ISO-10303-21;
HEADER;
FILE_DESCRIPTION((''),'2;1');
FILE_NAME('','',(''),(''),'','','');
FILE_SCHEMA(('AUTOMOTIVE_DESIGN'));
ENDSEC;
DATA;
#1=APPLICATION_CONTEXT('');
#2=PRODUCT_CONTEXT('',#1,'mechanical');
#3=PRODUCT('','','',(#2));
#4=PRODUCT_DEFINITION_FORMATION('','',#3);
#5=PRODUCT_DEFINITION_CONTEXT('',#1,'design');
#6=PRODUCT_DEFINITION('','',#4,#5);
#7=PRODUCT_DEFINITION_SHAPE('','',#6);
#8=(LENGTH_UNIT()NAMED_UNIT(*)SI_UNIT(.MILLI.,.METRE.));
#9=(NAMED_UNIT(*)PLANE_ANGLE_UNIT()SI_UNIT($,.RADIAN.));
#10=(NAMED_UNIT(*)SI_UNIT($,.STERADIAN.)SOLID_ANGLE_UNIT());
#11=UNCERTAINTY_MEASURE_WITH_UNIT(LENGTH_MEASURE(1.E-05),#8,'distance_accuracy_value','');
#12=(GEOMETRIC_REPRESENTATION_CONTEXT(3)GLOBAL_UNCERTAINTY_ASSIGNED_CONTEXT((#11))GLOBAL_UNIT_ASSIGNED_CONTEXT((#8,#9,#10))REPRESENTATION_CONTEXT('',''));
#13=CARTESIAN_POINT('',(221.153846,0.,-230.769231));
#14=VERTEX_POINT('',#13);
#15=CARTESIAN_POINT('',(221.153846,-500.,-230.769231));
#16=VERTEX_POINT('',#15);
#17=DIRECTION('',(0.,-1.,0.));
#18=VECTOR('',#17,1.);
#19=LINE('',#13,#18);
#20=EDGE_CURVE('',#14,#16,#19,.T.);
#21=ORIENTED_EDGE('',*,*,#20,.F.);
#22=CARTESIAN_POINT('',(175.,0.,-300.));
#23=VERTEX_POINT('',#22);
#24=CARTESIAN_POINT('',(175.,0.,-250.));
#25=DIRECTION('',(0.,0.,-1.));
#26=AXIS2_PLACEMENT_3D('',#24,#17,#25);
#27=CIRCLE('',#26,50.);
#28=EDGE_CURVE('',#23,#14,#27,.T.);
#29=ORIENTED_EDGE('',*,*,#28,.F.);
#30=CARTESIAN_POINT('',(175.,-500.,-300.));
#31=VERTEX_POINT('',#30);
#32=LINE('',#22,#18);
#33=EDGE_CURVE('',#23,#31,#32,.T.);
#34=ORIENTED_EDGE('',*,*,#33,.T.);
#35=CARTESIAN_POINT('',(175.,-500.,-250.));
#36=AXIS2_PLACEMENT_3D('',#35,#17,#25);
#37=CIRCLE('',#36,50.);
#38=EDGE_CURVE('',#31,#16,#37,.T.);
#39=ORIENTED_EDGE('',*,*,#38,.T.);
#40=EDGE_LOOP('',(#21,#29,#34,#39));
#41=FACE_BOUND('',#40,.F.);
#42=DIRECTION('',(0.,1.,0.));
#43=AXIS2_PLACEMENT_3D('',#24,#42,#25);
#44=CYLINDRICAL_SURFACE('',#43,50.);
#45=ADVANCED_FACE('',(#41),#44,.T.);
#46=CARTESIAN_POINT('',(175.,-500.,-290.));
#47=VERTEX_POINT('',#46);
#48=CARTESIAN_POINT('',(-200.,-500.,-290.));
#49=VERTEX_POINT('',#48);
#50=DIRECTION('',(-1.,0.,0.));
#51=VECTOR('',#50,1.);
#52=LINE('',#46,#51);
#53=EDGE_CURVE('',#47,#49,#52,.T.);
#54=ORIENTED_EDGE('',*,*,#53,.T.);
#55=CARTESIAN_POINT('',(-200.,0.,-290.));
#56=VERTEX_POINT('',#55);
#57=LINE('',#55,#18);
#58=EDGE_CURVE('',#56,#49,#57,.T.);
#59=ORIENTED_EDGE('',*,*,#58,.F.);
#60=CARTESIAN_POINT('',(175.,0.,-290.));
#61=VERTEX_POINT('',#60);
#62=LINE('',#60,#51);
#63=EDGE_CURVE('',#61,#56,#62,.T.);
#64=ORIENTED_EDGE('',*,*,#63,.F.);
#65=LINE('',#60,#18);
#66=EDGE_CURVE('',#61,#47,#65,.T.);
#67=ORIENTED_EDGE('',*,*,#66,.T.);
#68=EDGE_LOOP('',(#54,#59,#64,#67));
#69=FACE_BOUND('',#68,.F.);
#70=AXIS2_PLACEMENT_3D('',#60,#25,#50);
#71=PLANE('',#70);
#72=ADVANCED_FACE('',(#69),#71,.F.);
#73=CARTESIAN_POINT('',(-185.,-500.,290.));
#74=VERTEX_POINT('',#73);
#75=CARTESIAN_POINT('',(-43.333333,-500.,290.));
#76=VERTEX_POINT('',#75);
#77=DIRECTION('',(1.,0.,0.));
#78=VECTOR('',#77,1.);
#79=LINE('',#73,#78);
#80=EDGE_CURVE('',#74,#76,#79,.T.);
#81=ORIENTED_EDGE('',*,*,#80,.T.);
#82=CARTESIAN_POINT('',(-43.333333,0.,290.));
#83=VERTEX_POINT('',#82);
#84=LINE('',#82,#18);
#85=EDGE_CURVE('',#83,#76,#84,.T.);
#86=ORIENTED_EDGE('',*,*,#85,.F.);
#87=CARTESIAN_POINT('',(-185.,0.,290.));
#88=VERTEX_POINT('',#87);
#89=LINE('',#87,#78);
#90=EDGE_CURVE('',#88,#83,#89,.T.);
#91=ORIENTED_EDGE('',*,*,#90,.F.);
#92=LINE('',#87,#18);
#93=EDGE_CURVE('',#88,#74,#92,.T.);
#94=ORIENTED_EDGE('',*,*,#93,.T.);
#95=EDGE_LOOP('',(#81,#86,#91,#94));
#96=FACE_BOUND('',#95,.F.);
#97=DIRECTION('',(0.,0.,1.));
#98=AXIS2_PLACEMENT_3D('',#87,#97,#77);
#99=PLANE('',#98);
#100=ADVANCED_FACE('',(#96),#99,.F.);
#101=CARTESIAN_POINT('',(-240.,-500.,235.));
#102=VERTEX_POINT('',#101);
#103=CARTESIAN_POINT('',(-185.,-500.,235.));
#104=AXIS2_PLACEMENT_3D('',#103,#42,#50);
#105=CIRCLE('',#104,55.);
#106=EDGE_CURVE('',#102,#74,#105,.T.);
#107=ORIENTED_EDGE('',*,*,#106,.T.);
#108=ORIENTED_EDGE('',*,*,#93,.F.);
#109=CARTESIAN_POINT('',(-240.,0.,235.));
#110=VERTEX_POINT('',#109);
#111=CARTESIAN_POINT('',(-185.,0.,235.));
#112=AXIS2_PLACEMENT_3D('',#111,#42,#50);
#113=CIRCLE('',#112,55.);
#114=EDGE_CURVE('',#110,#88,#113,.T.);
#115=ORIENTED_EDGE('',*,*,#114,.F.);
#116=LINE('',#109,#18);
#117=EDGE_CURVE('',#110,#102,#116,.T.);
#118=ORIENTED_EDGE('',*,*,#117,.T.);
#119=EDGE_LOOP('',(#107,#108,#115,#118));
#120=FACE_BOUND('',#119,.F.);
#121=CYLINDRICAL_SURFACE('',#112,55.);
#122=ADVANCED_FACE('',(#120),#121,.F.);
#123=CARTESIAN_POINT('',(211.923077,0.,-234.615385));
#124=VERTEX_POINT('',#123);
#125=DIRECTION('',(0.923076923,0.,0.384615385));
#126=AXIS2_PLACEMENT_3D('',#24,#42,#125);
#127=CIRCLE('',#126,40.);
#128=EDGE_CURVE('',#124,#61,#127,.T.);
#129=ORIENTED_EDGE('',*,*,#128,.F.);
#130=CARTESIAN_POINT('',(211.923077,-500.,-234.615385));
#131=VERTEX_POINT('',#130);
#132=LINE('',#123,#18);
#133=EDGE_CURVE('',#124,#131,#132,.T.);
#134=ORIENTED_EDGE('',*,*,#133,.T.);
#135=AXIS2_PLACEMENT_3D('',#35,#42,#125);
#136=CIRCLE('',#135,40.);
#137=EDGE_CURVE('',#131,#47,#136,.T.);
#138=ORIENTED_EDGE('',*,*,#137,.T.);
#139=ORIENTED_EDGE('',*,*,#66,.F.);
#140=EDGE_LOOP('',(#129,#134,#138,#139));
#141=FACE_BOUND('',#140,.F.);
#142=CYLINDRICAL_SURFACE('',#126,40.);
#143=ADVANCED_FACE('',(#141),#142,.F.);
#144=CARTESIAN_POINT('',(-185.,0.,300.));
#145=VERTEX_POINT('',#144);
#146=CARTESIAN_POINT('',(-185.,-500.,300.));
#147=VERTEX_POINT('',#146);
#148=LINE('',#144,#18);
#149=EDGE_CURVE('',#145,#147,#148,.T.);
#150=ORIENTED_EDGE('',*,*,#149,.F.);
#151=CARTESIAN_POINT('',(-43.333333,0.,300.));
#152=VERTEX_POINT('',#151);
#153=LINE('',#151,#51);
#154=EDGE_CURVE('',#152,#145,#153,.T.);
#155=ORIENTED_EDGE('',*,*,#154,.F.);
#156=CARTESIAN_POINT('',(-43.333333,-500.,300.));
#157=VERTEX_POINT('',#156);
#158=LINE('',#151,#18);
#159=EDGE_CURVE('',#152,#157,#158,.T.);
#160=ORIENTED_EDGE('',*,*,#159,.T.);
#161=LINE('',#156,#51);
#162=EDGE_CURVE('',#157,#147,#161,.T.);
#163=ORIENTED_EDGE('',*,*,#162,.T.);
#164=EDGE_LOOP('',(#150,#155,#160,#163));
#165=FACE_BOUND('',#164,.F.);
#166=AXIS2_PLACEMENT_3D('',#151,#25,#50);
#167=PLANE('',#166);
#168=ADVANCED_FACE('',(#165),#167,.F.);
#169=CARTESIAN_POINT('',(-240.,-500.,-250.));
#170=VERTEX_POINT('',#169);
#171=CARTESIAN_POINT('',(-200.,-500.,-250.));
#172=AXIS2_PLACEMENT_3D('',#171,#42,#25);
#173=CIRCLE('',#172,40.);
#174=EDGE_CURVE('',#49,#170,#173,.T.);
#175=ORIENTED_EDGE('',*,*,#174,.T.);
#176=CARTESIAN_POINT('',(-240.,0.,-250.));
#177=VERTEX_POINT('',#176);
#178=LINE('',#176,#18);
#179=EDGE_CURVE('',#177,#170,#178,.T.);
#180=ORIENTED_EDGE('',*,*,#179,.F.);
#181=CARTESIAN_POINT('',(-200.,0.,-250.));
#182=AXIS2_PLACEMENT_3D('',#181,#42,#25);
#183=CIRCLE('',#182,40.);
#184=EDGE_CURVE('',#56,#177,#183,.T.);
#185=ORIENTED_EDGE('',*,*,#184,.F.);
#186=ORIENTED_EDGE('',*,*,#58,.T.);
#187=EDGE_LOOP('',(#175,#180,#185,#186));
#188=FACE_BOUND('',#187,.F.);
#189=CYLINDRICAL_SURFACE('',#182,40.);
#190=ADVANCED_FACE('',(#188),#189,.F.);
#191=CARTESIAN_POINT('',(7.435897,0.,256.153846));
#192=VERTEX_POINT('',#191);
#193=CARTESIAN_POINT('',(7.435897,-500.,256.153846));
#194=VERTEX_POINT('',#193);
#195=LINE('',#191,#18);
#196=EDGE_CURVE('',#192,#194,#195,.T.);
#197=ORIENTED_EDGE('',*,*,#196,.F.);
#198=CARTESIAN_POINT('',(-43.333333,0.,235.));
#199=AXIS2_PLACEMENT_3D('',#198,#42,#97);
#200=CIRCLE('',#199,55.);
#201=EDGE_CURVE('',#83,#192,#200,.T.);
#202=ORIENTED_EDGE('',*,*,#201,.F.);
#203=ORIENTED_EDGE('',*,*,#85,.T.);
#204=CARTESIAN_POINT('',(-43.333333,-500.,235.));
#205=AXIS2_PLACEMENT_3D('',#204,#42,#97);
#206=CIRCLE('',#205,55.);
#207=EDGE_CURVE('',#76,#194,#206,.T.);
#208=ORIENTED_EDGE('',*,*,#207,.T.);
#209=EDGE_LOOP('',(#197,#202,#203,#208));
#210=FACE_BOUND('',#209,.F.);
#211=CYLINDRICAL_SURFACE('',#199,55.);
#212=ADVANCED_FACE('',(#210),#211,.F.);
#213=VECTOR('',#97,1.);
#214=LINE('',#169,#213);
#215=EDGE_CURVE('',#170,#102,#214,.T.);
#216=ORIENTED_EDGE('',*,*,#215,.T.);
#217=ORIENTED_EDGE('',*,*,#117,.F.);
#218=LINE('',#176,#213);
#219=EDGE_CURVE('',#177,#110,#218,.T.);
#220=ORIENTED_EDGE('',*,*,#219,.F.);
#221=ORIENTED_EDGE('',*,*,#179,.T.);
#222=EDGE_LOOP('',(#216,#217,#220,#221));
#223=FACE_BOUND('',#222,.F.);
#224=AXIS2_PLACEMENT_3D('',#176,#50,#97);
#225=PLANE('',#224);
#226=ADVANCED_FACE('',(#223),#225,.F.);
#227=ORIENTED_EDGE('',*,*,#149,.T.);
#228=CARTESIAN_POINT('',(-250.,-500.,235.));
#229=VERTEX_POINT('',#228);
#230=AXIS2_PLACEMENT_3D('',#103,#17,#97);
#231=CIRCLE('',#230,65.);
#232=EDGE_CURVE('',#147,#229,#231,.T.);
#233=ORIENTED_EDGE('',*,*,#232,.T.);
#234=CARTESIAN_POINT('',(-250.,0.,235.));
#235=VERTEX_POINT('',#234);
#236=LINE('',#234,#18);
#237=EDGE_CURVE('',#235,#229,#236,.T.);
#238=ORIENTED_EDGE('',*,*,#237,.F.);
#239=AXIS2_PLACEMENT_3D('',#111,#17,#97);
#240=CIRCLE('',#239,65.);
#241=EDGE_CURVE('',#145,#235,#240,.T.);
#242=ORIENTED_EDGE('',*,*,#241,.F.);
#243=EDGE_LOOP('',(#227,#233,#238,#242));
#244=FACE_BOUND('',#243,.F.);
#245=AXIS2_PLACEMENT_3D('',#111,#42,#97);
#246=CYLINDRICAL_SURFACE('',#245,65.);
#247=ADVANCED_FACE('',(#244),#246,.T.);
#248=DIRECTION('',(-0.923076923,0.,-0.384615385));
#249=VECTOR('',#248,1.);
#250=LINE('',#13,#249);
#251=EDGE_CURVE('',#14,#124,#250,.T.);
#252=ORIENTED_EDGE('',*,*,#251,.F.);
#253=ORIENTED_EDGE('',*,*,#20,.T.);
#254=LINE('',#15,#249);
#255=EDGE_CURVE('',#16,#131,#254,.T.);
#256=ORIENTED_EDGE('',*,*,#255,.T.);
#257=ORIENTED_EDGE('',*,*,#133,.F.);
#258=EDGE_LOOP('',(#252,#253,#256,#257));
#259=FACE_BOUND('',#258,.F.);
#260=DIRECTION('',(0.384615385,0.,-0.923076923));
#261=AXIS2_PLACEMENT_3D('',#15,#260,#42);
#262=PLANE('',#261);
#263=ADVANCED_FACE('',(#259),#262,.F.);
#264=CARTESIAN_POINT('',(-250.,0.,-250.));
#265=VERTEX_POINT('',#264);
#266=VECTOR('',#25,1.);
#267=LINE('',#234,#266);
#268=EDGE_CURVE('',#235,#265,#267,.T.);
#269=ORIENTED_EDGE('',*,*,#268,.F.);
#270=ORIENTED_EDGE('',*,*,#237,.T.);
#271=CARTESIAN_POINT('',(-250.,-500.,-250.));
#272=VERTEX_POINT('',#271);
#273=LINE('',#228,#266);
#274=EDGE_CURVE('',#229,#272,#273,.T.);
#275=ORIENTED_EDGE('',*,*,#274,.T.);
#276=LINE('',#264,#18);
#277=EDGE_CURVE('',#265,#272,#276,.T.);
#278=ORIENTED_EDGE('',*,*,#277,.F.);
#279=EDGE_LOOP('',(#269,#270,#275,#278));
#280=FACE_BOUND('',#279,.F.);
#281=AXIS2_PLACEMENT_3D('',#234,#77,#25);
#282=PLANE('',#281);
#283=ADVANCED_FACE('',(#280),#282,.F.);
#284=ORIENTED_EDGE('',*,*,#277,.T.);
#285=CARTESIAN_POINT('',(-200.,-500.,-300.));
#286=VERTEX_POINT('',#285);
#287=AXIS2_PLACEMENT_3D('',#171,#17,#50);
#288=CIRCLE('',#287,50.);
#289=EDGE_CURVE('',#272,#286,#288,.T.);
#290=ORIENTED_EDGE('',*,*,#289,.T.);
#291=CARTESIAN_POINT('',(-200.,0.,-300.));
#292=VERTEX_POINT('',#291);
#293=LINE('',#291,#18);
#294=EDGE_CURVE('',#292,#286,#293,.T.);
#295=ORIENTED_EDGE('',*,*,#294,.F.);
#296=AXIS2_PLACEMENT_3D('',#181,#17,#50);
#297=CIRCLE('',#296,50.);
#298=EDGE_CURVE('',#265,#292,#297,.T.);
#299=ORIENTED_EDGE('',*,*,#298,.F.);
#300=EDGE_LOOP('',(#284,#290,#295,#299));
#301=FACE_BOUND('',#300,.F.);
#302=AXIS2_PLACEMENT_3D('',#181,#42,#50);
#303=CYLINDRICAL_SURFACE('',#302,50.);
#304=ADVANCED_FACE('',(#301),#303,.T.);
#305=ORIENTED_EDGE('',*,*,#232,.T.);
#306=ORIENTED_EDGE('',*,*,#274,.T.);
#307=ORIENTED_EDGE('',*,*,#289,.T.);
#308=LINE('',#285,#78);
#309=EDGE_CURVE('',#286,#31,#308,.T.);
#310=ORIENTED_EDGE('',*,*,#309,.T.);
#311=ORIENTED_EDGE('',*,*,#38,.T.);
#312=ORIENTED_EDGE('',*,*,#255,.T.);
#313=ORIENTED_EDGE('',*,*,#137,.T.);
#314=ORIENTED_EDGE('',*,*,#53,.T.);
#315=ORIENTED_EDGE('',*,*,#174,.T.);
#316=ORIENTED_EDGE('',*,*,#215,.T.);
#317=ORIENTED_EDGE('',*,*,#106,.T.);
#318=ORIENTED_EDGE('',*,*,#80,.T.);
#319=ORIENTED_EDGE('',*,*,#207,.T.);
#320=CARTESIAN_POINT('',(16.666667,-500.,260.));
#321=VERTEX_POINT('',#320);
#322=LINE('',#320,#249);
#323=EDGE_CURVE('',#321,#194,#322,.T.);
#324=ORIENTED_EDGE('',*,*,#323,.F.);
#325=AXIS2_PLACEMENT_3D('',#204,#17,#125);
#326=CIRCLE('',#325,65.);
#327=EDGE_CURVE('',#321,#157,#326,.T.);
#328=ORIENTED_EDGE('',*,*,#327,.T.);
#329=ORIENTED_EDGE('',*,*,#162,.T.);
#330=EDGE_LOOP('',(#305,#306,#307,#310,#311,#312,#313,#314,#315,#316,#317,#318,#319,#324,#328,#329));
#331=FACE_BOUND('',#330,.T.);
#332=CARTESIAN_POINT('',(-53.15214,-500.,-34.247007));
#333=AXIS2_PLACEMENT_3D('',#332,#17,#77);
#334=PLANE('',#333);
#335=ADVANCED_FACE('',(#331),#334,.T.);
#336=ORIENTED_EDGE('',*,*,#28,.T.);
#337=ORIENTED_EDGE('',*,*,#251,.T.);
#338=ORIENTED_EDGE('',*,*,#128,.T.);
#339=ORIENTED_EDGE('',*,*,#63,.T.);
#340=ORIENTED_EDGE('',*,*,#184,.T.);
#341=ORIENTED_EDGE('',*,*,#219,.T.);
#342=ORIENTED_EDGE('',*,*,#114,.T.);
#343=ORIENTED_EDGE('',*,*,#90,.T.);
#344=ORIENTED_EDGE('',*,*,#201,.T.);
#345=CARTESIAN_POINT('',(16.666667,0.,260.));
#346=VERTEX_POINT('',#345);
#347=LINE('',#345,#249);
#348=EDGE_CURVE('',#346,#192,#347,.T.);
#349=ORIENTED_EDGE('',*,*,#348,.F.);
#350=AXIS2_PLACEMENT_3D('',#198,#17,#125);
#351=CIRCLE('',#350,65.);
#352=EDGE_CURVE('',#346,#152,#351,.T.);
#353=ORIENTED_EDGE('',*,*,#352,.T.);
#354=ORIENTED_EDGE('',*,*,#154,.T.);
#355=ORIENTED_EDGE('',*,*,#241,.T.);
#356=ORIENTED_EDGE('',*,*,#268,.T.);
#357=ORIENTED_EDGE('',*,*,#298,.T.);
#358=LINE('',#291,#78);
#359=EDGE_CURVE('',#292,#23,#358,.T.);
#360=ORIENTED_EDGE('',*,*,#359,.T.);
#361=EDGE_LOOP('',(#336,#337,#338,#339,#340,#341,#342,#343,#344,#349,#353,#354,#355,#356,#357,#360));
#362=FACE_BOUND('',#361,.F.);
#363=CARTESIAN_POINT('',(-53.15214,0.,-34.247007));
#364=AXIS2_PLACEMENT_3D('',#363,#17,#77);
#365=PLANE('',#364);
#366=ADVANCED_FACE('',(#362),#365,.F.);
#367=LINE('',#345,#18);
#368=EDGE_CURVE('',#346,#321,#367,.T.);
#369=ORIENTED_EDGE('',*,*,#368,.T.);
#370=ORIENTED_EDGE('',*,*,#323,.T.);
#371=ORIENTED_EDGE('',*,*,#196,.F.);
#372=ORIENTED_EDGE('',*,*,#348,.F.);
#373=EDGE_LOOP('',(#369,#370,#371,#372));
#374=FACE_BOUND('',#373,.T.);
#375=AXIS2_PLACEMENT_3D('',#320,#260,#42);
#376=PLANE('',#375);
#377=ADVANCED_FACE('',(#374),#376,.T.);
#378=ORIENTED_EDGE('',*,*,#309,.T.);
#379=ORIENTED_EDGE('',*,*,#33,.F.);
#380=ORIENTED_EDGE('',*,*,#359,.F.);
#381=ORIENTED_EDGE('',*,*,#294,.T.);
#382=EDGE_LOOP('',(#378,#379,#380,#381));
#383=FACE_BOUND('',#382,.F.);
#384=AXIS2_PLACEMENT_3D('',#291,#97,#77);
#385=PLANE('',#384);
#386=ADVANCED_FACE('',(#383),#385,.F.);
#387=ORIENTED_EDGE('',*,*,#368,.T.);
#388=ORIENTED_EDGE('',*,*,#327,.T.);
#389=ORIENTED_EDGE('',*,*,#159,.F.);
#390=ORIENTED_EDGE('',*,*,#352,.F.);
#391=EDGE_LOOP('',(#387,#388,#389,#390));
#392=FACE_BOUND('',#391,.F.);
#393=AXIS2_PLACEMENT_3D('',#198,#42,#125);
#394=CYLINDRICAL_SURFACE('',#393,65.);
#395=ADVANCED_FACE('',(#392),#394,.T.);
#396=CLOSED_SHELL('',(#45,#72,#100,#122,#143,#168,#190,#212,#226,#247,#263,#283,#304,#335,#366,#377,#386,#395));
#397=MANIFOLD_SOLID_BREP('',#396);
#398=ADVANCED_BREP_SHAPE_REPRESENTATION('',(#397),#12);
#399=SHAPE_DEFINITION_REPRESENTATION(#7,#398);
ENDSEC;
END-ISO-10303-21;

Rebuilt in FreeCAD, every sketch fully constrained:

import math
import FreeCAD as App
import Part
import Sketcher
Q = App.Units.Quantity

doc = App.newDocument("Part")
body = doc.addObject("PartDesign::Body", "Body")

sketch1 = body.newObject("Sketcher::SketchObject", "Sketch")
sketch1.AttachmentSupport = (doc.getObject("XZ_Plane"), [""])
sketch1.MapMode = "FlatFace"
sketch1.addGeometry([
    Part.LineSegment(App.Vector(-43.333333, 300, 0), App.Vector(-185, 300, 0)),
    Part.ArcOfCircle(Part.Circle(App.Vector(-185, 235, 0), App.Vector(0, 0, 1), 65), math.radians(90), math.radians(180)),
    Part.LineSegment(App.Vector(-250, 235, 0), App.Vector(-250, -250, 0)),
    Part.ArcOfCircle(Part.Circle(App.Vector(-200, -250, 0), App.Vector(0, 0, 1), 50), math.radians(180), math.radians(270)),
    Part.LineSegment(App.Vector(-200, -300, 0), App.Vector(175, -300, 0)),
    Part.ArcOfCircle(Part.Circle(App.Vector(175, -250, 0), App.Vector(0, 0, 1), 50), math.radians(-90), math.radians(22.619865)),
    Part.LineSegment(App.Vector(221.153846, -230.769231, 0), App.Vector(16.666667, 260, 0)),
    Part.ArcOfCircle(Part.Circle(App.Vector(-43.333333, 235, 0), App.Vector(0, 0, 1), 65), math.radians(22.619865), math.radians(90)),
    Part.LineSegment(App.Vector(-240, -250, 0), App.Vector(-240, 235, 0)),
    Part.ArcOfCircle(Part.Circle(App.Vector(-185, 235, 0), App.Vector(0, 0, 1), 55), math.radians(90), math.radians(180)),
    Part.LineSegment(App.Vector(-185, 290, 0), App.Vector(-43.333333, 290, 0)),
    Part.ArcOfCircle(Part.Circle(App.Vector(-43.333333, 235, 0), App.Vector(0, 0, 1), 55), math.radians(22.619865), math.radians(90)),
    Part.LineSegment(App.Vector(7.435897, 256.153846, 0), App.Vector(211.923077, -234.615385, 0)),
    Part.ArcOfCircle(Part.Circle(App.Vector(175, -250, 0), App.Vector(0, 0, 1), 40), math.radians(-90), math.radians(22.619865)),
    Part.LineSegment(App.Vector(175, -290, 0), App.Vector(-200, -290, 0)),
    Part.ArcOfCircle(Part.Circle(App.Vector(-200, -250, 0), App.Vector(0, 0, 1), 40), math.radians(180), math.radians(270)),
], False)
sketch1.addConstraint([
    Sketcher.Constraint("Tangent", 0, 2, 1, 1),
    Sketcher.Constraint("Tangent", 1, 2, 2, 1),
    Sketcher.Constraint("Tangent", 2, 2, 3, 1),
    Sketcher.Constraint("Tangent", 3, 2, 4, 1),
    Sketcher.Constraint("Tangent", 4, 2, 5, 1),
    Sketcher.Constraint("Tangent", 5, 2, 6, 1),
    Sketcher.Constraint("Tangent", 6, 2, 7, 1),
    Sketcher.Constraint("Tangent", 7, 2, 0, 1),
    Sketcher.Constraint("Tangent", 8, 2, 9, 2),
    Sketcher.Constraint("Tangent", 9, 1, 10, 1),
    Sketcher.Constraint("Tangent", 10, 2, 11, 2),
    Sketcher.Constraint("Tangent", 11, 1, 12, 1),
    Sketcher.Constraint("Tangent", 12, 2, 13, 2),
    Sketcher.Constraint("Tangent", 13, 1, 14, 1),
    Sketcher.Constraint("Tangent", 14, 2, 15, 2),
    Sketcher.Constraint("Tangent", 15, 1, 8, 1),
    Sketcher.Constraint("Horizontal", 0),
    Sketcher.Constraint("Vertical", 2),
    Sketcher.Constraint("Horizontal", 4),
    Sketcher.Constraint("Vertical", 8),
    Sketcher.Constraint("Horizontal", 10),
    Sketcher.Constraint("Horizontal", 14),
    Sketcher.Constraint("Coincident", 9, 3, 1, 3),
    Sketcher.Constraint("Coincident", 11, 3, 7, 3),
    Sketcher.Constraint("Coincident", 13, 3, 5, 3),
    Sketcher.Constraint("Coincident", 15, 3, 3, 3),
    Sketcher.Constraint("Equal", 3, 5),
    Sketcher.Constraint("Equal", 1, 7),
    Sketcher.Constraint("Radius", 1, Q("65 mm")),
    Sketcher.Constraint("Radius", 3, Q("50 mm")),
    Sketcher.Constraint("Radius", 9, Q("55 mm")),
    Sketcher.Constraint("DistanceX", 4, 1, 4, 2, Q("375 mm")),
    Sketcher.Constraint("DistanceY", 2, 2, 2, 1, Q("485 mm")),
    Sketcher.Constraint("DistanceX", 1, 3, -1, 1, Q("185 mm")),
    Sketcher.Constraint("DistanceY", -1, 1, 1, 3, Q("235 mm")),
    Sketcher.Constraint("DistanceY", -1, 1, 6, 2, Q("260 mm")),
])
pad1 = body.newObject("PartDesign::Pad", "Pad")
pad1.Profile = sketch1
pad1.Length = 500

sketch2 = body.newObject("Sketcher::SketchObject", "Sketch001")
sketch2.Placement = App.Placement(App.Vector(106.508876, 0, 44.378698), App.Rotation(App.Vector(0, 1, 0), App.Vector(-0.384615385, 0, 0.923076923), App.Vector(0.923076923, 0, 0.384615385), "ZXY"))
sketch2.addGeometry([
    Part.LineSegment(App.Vector(-500, 233.589744, 0), App.Vector(-500, -298.076923, 0)),
    Part.LineSegment(App.Vector(-500, -298.076923, 0), App.Vector(0, -298.076923, 0)),
    Part.LineSegment(App.Vector(0, -298.076923, 0), App.Vector(0, 233.589744, 0)),
    Part.LineSegment(App.Vector(0, 233.589744, 0), App.Vector(-500, 233.589744, 0)),
], False)
sketch2.addConstraint([
    Sketcher.Constraint("Coincident", 0, 2, 1, 1),
    Sketcher.Constraint("Coincident", 1, 2, 2, 1),
    Sketcher.Constraint("Coincident", 2, 2, 3, 1),
    Sketcher.Constraint("Coincident", 3, 2, 0, 1),
    Sketcher.Constraint("Vertical", 0),
    Sketcher.Constraint("Horizontal", 1),
    Sketcher.Constraint("Vertical", 2),
    Sketcher.Constraint("Horizontal", 3),
    Sketcher.Constraint("PointOnObject", 1, 2, -2),
    Sketcher.Constraint("DistanceX", 1, 1, 1, 2, Q("500 mm")),
    Sketcher.Constraint("DistanceY", 0, 2, 0, 1, Q("531.666667 mm")),
    Sketcher.Constraint("DistanceY", 0, 2, -1, 1, Q("298.076923 mm")),
])
pocket1 = body.newObject("PartDesign::Pocket", "Pocket")
pocket1.Profile = sketch2
pocket1.Length = 25

doc.recompute()
